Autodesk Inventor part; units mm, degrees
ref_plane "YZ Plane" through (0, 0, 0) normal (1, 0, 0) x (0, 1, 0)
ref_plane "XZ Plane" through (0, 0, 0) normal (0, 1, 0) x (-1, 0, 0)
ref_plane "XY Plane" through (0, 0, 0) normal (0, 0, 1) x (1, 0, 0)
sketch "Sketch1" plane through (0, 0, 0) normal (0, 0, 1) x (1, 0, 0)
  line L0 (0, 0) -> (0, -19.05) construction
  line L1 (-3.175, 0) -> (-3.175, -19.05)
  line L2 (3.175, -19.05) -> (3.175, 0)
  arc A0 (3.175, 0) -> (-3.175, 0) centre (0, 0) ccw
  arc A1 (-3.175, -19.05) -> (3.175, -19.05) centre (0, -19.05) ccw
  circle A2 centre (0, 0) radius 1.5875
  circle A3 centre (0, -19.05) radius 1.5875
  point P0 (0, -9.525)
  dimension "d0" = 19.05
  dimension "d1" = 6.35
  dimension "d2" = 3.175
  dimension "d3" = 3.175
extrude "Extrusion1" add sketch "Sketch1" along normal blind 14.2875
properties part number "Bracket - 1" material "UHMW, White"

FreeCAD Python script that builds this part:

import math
import FreeCAD as App
import Part
import Sketcher
from FreeCAD import Vector
Q = App.Units.Quantity

doc = App.newDocument("Part")
params = doc.addObject("Spreadsheet::Sheet", "Params")
for row, (alias, value) in enumerate([
    ("sketch1_diameter", "0.125 in"),
    ("sketch1_radius", "0.125 in"),
    ("sketch1_height", "0.75 in"),
    ("pad1_length", "0.5625 in"),
], start=1):
    params.set(f"A{row}", alias)
    params.set(f"B{row}", "=" + value)
    params.setAlias(f"B{row}", alias)

body = doc.addObject("PartDesign::Body", "Body")

sketch1 = doc.addObject("Sketcher::SketchObject", "Sketch")
body.addObject(sketch1)
sketch1.AttachmentSupport = (doc.XY_Plane, [""])
sketch1.MapMode = "FlatFace"
sketch1.addGeometry([
    Part.ArcOfCircle(Part.Circle(Vector(0, 0, 0), Vector(0, 0, 1), 3.175), math.radians(0), math.radians(180)),
    Part.LineSegment(Vector(-3.175, 0, 0), Vector(-3.175, -19.05, 0)),
    Part.ArcOfCircle(Part.Circle(Vector(0, -19.05, 0), Vector(0, 0, 1), 3.175), math.radians(180), math.radians(360)),
    Part.LineSegment(Vector(3.175, -19.05, 0), Vector(3.175, 0, 0)),
    Part.Circle(Vector(0, -19.05, 0), Vector(0, 0, 1), 1.5875),
    Part.Circle(Vector(0, 0, 0), Vector(0, 0, 1), 1.5875),
], False)
sketch1.addConstraint([
    Sketcher.Constraint("Tangent", 0, 2, 1, 1),
    Sketcher.Constraint("Tangent", 1, 2, 2, 1),
    Sketcher.Constraint("Tangent", 2, 2, 3, 1),
    Sketcher.Constraint("Tangent", 3, 2, 0, 1),
    Sketcher.Constraint("Vertical", 1),
    Sketcher.Constraint("Vertical", 3),
    Sketcher.Constraint("Coincident", 0, 3, -1, 1),
    Sketcher.Constraint("Coincident", 5, 3, -1, 1),
    Sketcher.Constraint("Coincident", 4, 3, 2, 3),
    Sketcher.Constraint("Equal", 4, 5),
    Sketcher.Constraint("Diameter", 4, Q("0.125 in")),
    Sketcher.Constraint("Radius", 0, Q("0.125 in")),
    Sketcher.Constraint("DistanceY", 1, 2, 1, 1, Q("0.75 in")),
])
sketch1.setExpression("Constraints[10]", "Params.sketch1_diameter")
sketch1.setExpression("Constraints[11]", "Params.sketch1_radius")
sketch1.setExpression("Constraints[12]", "Params.sketch1_height")
pad1 = doc.addObject("PartDesign::Pad", "Pad")
body.addObject(pad1)
pad1.Profile = sketch1
pad1.setExpression("Length", "Params.pad1_length")

doc.recompute()
